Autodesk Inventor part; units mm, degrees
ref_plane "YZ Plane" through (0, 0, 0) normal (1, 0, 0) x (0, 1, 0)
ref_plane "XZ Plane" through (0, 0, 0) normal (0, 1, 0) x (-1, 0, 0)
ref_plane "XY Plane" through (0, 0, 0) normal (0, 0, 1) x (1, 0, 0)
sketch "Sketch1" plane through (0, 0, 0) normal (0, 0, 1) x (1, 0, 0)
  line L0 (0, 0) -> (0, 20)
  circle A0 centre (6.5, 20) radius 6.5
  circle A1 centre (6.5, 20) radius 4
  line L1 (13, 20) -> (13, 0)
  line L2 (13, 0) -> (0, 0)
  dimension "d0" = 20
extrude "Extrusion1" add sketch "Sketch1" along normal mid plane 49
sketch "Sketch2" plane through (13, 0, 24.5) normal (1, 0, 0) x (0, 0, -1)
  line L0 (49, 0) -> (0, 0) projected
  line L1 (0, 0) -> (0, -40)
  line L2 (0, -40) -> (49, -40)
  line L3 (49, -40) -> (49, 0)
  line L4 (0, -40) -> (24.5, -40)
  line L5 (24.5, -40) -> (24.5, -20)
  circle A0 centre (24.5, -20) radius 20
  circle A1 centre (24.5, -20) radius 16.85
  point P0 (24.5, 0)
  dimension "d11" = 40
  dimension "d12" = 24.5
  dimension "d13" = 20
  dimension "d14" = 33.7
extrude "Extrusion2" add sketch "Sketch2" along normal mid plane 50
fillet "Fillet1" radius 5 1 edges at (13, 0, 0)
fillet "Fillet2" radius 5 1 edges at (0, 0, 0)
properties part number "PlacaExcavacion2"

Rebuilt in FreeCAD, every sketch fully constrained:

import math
import FreeCAD as App
import Part
import Sketcher

V = App.Vector
Q = App.Units.Quantity


def edges_at(feature, points):
    """Names of the edges that pass closest to the given points."""
    edges = feature.Shape.Edges
    near = lambda p: min(range(len(edges)), key=lambda i: edges[i].distToShape(Part.Vertex(*p))[0])
    return sorted({f"Edge{near(p) + 1}" for p in points})


def add_polygon(sketch, points):
    """Adds a closed chain of lines whose ends are joined by coincident constraints."""
    first, n = sketch.GeometryCount, len(points)
    for a, b in zip(points, points[1:] + points[:1]):
        sketch.addGeometry(Part.LineSegment(App.Vector(*a, 0), App.Vector(*b, 0)), False)
    for i in range(n):
        sketch.addConstraint(Sketcher.Constraint("Coincident", first + i, 2, first + (i + 1) % n, 1))

doc = App.newDocument("Part")
params = doc.addObject("Spreadsheet::Sheet", "Params")
for row, (alias, value) in enumerate([
    ("sketch1_height", "20 mm"),
    ("sketch1_diameter", "8 mm"),
    ("sketch1_radius", "6.5 mm"),
    ("pad1_length", "49 mm"),
    ("sketch2_diameter", "33.7 mm"),
    ("sketch2_width", "40 mm"),
    ("sketch2_height", "24.5 mm"),
    ("pad2_length", "50 mm"),
    ("fillet_radius", "5 mm"),
    ("fillet2_radius", "5 mm"),
], start=1):
    params.set(f"A{row}", alias)
    params.set(f"B{row}", "=" + value)
    params.setAlias(f"B{row}", alias)

body = doc.addObject("PartDesign::Body", "Body")

# Sketch on XY plane
sketch1 = body.newObject("Sketcher::SketchObject", "Sketch")
sketch1.AttachmentSupport = (doc.getObject("XY_Plane"), [""])
sketch1.MapMode = "FlatFace"
sketch1.addGeometry(Part.LineSegment(V(0, 20, 0), V(0, 0, 0)), False)
sketch1.addGeometry(Part.LineSegment(V(0, 0, 0), V(13, 0, 0)), False)
sketch1.addGeometry(Part.LineSegment(V(13, 0, 0), V(13, 20, 0)), False)
sketch1.addGeometry(Part.ArcOfCircle(Part.Circle(V(6.5, 20, 0), V(0, 0, 1), 6.5), math.radians(0), math.radians(180)), False)
sketch1.addGeometry(Part.Circle(V(6.5, 20, 0), V(0, 0, 1), 4), False)
sketch1.addConstraint(Sketcher.Constraint("Coincident", 0, 2, 1, 1))
sketch1.addConstraint(Sketcher.Constraint("Coincident", 1, 2, 2, 1))
sketch1.addConstraint(Sketcher.Constraint("Tangent", 2, 2, 3, 1))
sketch1.addConstraint(Sketcher.Constraint("Tangent", 3, 2, 0, 1))
sketch1.addConstraint(Sketcher.Constraint("Vertical", 0))
sketch1.addConstraint(Sketcher.Constraint("Horizontal", 1))
sketch1.addConstraint(Sketcher.Constraint("Vertical", 2))
sketch1.addConstraint(Sketcher.Constraint("Coincident", 0, 2, -1, 1))
sketch1.addConstraint(Sketcher.Constraint("Coincident", 4, 3, 3, 3))
sketch1.addConstraint(Sketcher.Constraint("DistanceY", 0, 2, 0, 1, Q("20 mm")))
sketch1.addConstraint(Sketcher.Constraint("Diameter", 4, Q("8 mm")))
sketch1.addConstraint(Sketcher.Constraint("Radius", 3, Q("6.5 mm")))
sketch1.setExpression("Constraints[9]", "Params.sketch1_height")
sketch1.setExpression("Constraints[10]", "Params.sketch1_diameter")
sketch1.setExpression("Constraints[11]", "Params.sketch1_radius")
pad1 = body.newObject("PartDesign::Pad", "Pad")
pad1.Profile = sketch1
pad1.setExpression("Length", "Params.pad1_length")
pad1.Midplane = True

# Sketch on YZ plane
sketch2 = body.newObject("Sketcher::SketchObject", "Sketch001")
sketch2.AttachmentSupport = (doc.getObject("YZ_Plane"), [""])
sketch2.MapMode = "FlatFace"
sketch2.AttachmentOffset = App.Placement(V(0, 0, 13), App.Rotation())
add_polygon(sketch2, [(-40, -24.5), (0, -24.5), (0, 24.5), (-40, 24.5), (-40, 0)])  # lines 0-4
sketch2.addGeometry(Part.Circle(V(-20, 0, 0), V(0, 0, 1), 16.85), False)  # 5
sketch2.addConstraint(Sketcher.Constraint("Horizontal", 0))
sketch2.addConstraint(Sketcher.Constraint("Vertical", 1))
sketch2.addConstraint(Sketcher.Constraint("Horizontal", 2))
sketch2.addConstraint(Sketcher.Constraint("Vertical", 3))
sketch2.addConstraint(Sketcher.Constraint("Vertical", 4))
sketch2.addConstraint(Sketcher.Constraint("Symmetric", 0, 2, 1, 2, -1, 1))
sketch2.addConstraint(Sketcher.Constraint("PointOnObject", 5, 3, -1))
sketch2.addConstraint(Sketcher.Constraint("PointOnObject", 3, 2, -1))
sketch2.addConstraint(Sketcher.Constraint("Diameter", 5, Q("33.7 mm")))
sketch2.addConstraint(Sketcher.Constraint("DistanceX", 0, 1, 0, 2, Q("40 mm")))
sketch2.addConstraint(Sketcher.Constraint("DistanceY", 3, 2, 3, 1, Q("24.5 mm")))
sketch2.addConstraint(Sketcher.Constraint("DistanceX", 5, 3, -1, 1, Q("20 mm")))
sketch2.setExpression("Constraints[13]", "Params.sketch2_diameter")
sketch2.setExpression("Constraints[14]", "Params.sketch2_width")
sketch2.setExpression("Constraints[15]", "Params.sketch2_height")
pad2 = body.newObject("PartDesign::Pad", "Pad001")
pad2.Profile = sketch2
pad2.setExpression("Length", "Params.pad2_length")
pad2.Midplane = True
doc.recompute()

fillet = body.newObject("PartDesign::Fillet", "Fillet")
fillet.Base = (pad2, edges_at(pad2, [(13, 0, 0)]))
fillet.setExpression("Radius", "Params.fillet_radius")
doc.recompute()

fillet2 = body.newObject("PartDesign::Fillet", "Fillet001")
fillet2.Base = (fillet, edges_at(fillet, [(0, 0, 0)]))
fillet2.setExpression("Radius", "Params.fillet2_radius")

doc.recompute()
